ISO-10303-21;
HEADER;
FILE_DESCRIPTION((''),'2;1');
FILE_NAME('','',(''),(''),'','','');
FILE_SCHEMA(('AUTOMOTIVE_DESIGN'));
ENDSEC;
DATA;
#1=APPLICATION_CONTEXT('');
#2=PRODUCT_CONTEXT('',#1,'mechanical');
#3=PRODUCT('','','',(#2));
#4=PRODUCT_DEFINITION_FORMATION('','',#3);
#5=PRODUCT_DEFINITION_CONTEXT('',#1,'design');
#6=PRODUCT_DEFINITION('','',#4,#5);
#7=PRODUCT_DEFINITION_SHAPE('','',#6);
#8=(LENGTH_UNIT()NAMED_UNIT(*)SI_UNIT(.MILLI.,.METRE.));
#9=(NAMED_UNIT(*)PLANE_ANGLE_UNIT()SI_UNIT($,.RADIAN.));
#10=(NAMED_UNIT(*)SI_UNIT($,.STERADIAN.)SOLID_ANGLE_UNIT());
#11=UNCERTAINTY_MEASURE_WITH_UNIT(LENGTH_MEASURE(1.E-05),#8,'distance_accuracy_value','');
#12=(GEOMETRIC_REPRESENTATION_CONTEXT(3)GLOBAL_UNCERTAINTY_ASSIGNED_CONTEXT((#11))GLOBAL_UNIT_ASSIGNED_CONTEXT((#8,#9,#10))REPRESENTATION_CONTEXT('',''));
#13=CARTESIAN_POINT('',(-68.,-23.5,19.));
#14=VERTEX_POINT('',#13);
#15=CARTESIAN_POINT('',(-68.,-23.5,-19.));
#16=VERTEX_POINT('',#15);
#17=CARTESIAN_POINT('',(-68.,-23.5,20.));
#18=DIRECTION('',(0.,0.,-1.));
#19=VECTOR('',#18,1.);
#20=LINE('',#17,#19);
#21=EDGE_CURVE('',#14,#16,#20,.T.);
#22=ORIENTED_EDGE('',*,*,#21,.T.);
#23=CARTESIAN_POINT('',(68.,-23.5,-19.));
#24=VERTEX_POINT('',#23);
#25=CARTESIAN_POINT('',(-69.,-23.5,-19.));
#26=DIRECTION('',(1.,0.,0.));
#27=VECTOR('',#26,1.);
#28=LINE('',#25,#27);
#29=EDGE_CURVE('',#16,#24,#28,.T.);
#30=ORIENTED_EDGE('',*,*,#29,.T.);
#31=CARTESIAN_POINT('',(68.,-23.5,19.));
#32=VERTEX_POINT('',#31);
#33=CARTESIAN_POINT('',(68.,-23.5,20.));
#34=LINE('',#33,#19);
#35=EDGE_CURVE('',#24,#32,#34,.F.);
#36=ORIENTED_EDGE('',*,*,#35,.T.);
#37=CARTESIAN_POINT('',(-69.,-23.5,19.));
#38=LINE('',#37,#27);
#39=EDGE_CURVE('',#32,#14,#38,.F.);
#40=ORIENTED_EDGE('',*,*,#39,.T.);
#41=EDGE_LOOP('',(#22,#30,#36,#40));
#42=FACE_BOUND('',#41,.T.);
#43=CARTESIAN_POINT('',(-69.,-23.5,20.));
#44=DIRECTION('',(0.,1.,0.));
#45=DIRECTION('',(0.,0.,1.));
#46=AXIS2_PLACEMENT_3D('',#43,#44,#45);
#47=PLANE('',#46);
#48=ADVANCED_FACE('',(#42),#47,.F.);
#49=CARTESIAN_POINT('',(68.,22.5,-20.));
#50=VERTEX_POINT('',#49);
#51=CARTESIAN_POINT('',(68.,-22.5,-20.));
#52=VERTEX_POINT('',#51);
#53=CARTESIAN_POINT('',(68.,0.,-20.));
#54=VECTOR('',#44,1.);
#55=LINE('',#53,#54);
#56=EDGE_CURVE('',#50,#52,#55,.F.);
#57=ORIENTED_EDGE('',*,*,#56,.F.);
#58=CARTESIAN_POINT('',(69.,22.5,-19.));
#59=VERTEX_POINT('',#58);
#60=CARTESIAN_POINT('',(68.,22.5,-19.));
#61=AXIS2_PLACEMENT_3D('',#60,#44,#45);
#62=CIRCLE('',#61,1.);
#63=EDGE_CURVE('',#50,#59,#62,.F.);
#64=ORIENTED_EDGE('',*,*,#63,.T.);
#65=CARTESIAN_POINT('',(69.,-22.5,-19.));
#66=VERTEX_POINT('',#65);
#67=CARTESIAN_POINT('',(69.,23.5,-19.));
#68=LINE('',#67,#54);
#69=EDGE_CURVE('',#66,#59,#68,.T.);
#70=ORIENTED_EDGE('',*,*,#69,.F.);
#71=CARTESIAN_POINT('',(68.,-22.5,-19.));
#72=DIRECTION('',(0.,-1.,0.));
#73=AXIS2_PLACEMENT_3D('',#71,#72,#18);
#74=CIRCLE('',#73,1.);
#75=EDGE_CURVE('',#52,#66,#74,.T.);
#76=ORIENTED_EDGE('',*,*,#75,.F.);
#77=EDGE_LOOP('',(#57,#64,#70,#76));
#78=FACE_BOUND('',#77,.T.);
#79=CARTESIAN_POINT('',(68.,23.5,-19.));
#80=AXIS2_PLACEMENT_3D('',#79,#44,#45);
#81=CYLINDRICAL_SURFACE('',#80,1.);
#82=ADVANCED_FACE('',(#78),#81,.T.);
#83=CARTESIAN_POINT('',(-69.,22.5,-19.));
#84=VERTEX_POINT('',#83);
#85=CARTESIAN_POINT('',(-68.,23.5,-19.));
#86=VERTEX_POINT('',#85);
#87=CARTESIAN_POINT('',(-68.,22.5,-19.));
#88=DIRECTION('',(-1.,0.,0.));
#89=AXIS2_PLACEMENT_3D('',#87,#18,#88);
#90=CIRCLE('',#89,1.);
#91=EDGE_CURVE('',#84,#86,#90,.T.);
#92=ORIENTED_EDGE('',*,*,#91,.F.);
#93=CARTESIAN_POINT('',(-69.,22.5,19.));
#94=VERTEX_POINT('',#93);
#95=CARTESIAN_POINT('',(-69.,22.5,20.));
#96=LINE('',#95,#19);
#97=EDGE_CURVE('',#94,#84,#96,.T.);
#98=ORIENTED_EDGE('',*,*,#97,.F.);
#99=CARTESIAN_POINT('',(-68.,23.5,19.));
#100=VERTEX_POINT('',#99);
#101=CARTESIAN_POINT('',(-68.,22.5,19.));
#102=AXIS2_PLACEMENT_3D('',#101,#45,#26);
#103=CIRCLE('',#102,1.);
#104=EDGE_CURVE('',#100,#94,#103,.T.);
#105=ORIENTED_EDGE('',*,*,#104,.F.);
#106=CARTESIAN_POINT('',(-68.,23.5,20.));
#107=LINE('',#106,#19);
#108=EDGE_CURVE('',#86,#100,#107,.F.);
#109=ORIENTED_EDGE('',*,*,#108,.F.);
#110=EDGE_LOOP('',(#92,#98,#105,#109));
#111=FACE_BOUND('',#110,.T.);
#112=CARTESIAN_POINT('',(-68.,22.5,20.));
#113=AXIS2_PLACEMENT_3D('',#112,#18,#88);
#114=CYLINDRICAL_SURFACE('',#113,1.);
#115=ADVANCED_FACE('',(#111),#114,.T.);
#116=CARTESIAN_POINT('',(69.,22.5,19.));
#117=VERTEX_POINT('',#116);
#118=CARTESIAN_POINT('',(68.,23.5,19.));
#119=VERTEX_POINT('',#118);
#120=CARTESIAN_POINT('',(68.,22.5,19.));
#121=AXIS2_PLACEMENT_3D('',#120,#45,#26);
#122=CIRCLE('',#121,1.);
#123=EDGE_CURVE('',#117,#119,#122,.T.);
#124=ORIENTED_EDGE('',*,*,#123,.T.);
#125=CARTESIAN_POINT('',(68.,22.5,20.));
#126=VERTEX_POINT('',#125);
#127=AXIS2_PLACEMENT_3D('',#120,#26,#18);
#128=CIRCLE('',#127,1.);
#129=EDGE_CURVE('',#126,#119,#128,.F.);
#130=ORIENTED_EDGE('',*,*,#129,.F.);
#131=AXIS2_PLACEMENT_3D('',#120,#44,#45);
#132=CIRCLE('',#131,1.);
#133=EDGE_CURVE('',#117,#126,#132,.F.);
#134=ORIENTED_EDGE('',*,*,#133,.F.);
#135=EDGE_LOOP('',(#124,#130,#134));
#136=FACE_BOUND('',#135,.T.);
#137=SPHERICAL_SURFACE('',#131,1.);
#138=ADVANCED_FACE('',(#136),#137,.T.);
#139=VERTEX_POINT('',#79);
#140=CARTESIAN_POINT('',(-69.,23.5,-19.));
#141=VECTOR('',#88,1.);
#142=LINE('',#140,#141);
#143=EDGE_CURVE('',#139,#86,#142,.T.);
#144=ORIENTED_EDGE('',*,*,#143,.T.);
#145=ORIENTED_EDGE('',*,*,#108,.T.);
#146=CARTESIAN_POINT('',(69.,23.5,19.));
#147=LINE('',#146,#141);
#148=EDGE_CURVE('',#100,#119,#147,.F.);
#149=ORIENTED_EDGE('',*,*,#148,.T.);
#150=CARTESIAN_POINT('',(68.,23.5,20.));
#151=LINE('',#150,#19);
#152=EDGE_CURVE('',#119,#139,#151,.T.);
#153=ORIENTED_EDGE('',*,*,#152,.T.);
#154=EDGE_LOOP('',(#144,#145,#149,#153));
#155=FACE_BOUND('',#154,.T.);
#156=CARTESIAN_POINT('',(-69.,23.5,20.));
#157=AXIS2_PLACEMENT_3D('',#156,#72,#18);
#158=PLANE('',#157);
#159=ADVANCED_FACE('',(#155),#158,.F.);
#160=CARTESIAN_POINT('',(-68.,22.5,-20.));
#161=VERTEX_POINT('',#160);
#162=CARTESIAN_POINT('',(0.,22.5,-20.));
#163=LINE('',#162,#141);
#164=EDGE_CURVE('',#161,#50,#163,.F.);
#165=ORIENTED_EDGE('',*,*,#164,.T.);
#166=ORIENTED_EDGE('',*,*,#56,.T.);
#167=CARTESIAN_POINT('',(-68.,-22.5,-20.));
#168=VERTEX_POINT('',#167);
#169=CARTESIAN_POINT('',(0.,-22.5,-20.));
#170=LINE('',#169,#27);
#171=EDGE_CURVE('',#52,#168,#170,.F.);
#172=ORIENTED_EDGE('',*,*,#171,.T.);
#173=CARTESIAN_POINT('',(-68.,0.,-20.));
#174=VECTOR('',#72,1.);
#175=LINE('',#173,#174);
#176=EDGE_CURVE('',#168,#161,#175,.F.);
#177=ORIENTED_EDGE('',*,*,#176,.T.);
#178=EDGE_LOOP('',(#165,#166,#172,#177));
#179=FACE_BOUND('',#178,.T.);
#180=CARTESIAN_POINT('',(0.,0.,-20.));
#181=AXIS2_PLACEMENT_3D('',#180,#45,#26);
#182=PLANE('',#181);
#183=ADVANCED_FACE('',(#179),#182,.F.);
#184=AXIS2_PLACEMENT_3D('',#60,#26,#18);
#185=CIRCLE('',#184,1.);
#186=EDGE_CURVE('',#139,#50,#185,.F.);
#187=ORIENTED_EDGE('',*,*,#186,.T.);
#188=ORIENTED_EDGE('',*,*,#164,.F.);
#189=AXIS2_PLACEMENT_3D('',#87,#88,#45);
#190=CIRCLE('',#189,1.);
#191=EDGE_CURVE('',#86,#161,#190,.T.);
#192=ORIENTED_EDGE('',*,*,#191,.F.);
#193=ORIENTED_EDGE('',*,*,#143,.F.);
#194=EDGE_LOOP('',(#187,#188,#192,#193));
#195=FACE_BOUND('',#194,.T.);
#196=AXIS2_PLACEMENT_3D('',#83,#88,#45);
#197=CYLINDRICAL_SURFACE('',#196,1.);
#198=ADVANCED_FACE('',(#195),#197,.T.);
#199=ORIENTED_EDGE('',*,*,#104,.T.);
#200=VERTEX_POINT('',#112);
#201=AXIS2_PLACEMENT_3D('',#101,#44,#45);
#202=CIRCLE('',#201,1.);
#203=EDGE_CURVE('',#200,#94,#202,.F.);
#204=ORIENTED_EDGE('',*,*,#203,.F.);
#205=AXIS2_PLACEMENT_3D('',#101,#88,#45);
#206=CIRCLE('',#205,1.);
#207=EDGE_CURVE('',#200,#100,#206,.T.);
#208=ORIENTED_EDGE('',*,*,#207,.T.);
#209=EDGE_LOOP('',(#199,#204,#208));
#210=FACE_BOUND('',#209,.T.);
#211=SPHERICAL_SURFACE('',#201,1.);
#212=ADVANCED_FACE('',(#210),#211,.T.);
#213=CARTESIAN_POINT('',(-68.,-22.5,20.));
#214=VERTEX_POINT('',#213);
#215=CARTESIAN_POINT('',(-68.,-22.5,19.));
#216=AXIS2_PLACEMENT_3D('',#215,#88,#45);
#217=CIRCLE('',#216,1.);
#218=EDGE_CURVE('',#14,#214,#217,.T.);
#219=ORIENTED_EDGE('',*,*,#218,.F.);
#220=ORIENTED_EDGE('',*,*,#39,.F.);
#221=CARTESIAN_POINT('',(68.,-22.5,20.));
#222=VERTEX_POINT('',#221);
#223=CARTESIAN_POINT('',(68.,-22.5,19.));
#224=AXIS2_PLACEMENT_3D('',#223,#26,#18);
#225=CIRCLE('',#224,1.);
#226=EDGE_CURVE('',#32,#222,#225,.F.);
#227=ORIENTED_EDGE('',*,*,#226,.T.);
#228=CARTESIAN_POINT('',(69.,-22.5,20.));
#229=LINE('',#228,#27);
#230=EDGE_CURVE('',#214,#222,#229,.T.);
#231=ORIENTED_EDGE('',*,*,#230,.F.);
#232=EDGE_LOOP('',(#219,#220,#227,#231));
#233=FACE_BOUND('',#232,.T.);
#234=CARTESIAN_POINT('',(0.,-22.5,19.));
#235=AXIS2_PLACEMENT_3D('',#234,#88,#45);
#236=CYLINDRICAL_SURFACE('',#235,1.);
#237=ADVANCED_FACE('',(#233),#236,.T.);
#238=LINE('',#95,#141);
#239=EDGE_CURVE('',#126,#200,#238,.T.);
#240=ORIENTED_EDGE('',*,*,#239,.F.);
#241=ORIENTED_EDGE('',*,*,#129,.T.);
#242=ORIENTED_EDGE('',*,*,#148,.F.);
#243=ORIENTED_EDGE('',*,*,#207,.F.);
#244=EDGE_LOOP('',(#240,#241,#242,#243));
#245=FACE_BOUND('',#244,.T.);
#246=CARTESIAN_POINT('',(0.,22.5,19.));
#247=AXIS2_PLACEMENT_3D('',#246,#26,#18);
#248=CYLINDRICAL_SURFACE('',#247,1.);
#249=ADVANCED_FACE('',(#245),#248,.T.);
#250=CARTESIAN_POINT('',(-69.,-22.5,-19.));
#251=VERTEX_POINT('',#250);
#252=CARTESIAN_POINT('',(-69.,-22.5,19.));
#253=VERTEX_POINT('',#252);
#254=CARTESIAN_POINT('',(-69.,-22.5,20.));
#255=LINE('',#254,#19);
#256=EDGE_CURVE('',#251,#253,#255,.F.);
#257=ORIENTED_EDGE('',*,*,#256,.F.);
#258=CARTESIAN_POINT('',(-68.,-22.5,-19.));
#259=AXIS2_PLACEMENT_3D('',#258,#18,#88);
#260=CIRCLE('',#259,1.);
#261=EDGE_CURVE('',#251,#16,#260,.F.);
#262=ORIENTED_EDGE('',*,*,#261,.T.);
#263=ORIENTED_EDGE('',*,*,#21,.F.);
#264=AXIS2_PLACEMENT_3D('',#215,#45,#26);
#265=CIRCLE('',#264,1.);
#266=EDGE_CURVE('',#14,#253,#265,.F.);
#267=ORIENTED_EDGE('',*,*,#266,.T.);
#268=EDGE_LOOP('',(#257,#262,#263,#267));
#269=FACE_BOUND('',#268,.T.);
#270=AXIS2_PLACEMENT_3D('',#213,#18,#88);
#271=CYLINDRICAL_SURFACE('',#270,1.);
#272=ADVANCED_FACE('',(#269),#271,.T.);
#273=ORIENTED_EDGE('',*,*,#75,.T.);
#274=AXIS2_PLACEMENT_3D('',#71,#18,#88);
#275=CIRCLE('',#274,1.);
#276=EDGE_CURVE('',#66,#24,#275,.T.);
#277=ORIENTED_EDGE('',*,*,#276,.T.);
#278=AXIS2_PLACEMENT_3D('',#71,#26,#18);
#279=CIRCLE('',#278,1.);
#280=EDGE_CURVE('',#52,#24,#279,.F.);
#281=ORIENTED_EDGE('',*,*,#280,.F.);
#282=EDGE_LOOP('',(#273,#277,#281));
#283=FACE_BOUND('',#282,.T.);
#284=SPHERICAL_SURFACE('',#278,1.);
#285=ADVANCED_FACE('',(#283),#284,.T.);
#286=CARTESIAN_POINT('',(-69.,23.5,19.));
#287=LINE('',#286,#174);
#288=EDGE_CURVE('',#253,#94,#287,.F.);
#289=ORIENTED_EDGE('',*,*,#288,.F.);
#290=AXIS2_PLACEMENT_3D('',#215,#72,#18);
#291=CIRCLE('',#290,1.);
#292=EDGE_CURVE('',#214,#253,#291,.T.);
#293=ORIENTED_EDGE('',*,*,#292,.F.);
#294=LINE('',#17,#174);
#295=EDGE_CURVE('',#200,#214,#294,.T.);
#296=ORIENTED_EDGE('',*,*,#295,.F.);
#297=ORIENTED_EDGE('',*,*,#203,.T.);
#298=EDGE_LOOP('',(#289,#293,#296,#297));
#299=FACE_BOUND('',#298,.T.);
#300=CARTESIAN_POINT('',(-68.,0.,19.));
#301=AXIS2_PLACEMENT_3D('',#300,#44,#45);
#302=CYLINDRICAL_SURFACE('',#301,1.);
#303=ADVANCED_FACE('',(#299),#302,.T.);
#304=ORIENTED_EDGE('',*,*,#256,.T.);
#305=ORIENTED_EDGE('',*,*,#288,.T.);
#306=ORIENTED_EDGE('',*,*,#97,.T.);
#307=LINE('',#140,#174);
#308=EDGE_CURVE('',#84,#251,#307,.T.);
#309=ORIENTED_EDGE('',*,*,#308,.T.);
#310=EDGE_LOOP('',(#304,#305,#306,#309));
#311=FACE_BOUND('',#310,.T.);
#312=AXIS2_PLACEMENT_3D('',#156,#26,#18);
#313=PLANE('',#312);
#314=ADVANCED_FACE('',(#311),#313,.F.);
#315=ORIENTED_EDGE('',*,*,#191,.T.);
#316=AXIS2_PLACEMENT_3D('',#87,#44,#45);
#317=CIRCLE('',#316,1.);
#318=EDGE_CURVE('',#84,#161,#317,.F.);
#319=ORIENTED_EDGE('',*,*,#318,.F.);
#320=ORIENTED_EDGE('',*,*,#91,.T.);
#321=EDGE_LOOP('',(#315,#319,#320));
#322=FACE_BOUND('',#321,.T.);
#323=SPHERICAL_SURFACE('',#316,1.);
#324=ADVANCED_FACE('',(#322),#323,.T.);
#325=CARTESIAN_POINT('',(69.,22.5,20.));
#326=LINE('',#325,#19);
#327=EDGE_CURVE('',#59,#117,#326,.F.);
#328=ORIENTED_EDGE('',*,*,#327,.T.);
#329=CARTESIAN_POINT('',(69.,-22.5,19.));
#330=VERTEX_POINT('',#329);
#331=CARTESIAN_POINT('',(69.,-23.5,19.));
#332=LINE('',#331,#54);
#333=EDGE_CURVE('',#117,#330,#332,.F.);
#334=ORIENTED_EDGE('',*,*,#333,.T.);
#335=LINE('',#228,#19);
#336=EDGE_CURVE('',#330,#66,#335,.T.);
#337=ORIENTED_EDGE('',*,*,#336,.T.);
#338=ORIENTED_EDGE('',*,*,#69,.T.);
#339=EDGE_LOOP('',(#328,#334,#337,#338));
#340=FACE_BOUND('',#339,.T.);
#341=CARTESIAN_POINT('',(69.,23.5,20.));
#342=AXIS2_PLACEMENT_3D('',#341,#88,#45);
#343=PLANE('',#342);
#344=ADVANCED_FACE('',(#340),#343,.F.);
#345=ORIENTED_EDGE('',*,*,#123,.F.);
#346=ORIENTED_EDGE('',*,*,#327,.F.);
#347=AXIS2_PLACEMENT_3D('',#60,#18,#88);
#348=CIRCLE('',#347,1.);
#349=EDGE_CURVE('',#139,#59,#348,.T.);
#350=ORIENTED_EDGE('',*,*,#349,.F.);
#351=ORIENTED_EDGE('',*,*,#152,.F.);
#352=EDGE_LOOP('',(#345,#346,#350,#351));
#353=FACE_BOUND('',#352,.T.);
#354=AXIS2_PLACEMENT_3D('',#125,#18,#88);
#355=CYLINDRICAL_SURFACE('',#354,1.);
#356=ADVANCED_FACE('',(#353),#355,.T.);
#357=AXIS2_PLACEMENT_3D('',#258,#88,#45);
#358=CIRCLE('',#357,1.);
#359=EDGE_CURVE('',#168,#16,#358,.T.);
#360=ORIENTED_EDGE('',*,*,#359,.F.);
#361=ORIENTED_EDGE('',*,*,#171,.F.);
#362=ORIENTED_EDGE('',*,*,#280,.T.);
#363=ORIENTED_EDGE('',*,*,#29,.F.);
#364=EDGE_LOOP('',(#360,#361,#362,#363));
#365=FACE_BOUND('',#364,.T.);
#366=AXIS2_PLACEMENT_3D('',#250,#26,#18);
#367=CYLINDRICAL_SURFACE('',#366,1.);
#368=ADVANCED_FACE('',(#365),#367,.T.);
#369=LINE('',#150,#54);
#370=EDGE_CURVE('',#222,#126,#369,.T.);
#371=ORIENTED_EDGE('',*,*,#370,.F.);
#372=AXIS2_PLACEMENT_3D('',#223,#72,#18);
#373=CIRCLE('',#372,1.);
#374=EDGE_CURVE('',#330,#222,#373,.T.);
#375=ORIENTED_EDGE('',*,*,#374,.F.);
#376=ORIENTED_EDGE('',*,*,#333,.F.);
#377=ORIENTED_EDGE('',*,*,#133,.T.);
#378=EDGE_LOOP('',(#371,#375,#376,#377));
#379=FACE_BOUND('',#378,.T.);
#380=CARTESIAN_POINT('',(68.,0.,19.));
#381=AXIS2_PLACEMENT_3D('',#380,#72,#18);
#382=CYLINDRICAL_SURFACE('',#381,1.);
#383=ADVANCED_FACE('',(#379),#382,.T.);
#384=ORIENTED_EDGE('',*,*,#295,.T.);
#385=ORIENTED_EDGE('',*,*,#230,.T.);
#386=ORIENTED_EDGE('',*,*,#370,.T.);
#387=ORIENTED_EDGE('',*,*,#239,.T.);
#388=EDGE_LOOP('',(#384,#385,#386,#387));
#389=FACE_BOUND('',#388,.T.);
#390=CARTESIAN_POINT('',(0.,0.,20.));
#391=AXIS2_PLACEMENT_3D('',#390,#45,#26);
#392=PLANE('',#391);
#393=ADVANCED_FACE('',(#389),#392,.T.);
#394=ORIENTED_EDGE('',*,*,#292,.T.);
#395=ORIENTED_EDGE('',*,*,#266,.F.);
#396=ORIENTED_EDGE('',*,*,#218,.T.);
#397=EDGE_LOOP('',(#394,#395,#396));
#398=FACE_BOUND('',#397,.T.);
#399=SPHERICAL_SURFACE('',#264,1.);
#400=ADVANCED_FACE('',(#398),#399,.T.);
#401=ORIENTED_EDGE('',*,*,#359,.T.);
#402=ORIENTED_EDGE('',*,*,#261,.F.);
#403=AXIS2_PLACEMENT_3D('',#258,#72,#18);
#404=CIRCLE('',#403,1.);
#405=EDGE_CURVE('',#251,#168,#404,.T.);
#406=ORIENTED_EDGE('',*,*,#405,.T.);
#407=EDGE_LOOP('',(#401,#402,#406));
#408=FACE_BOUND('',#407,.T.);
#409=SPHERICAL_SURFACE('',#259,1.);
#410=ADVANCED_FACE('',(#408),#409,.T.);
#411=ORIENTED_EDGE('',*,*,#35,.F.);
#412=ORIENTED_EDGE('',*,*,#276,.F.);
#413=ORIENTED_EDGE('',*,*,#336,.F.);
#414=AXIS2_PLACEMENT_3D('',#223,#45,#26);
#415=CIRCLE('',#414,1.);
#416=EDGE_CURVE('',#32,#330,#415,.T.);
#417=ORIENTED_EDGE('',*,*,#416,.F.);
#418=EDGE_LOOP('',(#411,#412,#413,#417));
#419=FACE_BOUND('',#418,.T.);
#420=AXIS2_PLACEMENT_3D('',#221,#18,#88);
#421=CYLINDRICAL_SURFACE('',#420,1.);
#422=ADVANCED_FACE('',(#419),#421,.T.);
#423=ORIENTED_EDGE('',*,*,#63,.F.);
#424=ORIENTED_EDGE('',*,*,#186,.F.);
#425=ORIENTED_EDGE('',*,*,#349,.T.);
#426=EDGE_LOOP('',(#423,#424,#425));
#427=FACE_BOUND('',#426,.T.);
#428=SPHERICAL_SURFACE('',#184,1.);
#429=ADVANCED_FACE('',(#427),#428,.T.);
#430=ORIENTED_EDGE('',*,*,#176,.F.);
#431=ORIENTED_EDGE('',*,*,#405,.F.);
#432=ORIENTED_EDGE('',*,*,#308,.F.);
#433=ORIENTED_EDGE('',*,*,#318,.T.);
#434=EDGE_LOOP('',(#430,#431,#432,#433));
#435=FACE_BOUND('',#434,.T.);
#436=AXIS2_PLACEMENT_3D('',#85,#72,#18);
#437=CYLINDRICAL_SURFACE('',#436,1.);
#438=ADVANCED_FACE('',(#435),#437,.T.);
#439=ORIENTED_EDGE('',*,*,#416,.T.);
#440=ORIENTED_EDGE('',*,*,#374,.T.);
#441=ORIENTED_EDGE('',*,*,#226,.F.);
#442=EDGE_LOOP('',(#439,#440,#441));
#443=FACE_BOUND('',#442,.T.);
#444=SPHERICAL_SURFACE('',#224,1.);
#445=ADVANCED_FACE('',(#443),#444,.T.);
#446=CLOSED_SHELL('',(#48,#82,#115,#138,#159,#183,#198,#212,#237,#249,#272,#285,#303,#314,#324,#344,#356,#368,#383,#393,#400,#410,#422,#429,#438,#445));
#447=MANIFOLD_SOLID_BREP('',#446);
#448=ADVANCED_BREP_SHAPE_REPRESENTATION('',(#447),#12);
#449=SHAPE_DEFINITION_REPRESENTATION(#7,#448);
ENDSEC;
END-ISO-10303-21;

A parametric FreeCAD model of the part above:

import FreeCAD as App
import Part
import Sketcher

V = App.Vector
Q = App.Units.Quantity


def add_polygon(sketch, points):
    """Adds a closed chain of lines whose ends are joined by coincident constraints."""
    first, n = sketch.GeometryCount, len(points)
    for a, b in zip(points, points[1:] + points[:1]):
        sketch.addGeometry(Part.LineSegment(App.Vector(*a, 0), App.Vector(*b, 0)), False)
    for i in range(n):
        sketch.addConstraint(Sketcher.Constraint("Coincident", first + i, 2, first + (i + 1) % n, 1))

doc = App.newDocument("Part")
body = doc.addObject("PartDesign::Body", "Body")

# Sketch on XY plane
sketch1 = doc.addObject("Sketcher::SketchObject", "Sketch")
body.addObject(sketch1)
sketch1.AttachmentSupport = (doc.XY_Plane, [""])
sketch1.MapMode = "FlatFace"
add_polygon(sketch1, [(-69, 24), (-69, -24), (69, -24), (69, 24)])  # lines 0-3
sketch1.addConstraint([
    Sketcher.Constraint("Vertical", 0),
    Sketcher.Constraint("Horizontal", 1),
    Sketcher.Constraint("Vertical", 2),
    Sketcher.Constraint("Horizontal", 3),
    Sketcher.Constraint("Symmetric", 0, 2, 2, 2, -1, 1),
    Sketcher.Constraint("DistanceX", 1, 1, 1, 2, Q("138 mm")),
    Sketcher.Constraint("DistanceY", 0, 2, 0, 1, Q("47 mm")),
])
pad1 = doc.addObject("PartDesign::Pad", "Pad")
body.addObject(pad1)
pad1.Profile = sketch1
pad1.Length = 40
pad1.Midplane = True
doc.recompute()

fillet = doc.addObject("PartDesign::Fillet", "Fillet")
body.addObject(fillet)
fillet.Base = (pad1, ["Edge1"])
fillet.UseAllEdges = True
fillet.Radius = 1

doc.recompute()
